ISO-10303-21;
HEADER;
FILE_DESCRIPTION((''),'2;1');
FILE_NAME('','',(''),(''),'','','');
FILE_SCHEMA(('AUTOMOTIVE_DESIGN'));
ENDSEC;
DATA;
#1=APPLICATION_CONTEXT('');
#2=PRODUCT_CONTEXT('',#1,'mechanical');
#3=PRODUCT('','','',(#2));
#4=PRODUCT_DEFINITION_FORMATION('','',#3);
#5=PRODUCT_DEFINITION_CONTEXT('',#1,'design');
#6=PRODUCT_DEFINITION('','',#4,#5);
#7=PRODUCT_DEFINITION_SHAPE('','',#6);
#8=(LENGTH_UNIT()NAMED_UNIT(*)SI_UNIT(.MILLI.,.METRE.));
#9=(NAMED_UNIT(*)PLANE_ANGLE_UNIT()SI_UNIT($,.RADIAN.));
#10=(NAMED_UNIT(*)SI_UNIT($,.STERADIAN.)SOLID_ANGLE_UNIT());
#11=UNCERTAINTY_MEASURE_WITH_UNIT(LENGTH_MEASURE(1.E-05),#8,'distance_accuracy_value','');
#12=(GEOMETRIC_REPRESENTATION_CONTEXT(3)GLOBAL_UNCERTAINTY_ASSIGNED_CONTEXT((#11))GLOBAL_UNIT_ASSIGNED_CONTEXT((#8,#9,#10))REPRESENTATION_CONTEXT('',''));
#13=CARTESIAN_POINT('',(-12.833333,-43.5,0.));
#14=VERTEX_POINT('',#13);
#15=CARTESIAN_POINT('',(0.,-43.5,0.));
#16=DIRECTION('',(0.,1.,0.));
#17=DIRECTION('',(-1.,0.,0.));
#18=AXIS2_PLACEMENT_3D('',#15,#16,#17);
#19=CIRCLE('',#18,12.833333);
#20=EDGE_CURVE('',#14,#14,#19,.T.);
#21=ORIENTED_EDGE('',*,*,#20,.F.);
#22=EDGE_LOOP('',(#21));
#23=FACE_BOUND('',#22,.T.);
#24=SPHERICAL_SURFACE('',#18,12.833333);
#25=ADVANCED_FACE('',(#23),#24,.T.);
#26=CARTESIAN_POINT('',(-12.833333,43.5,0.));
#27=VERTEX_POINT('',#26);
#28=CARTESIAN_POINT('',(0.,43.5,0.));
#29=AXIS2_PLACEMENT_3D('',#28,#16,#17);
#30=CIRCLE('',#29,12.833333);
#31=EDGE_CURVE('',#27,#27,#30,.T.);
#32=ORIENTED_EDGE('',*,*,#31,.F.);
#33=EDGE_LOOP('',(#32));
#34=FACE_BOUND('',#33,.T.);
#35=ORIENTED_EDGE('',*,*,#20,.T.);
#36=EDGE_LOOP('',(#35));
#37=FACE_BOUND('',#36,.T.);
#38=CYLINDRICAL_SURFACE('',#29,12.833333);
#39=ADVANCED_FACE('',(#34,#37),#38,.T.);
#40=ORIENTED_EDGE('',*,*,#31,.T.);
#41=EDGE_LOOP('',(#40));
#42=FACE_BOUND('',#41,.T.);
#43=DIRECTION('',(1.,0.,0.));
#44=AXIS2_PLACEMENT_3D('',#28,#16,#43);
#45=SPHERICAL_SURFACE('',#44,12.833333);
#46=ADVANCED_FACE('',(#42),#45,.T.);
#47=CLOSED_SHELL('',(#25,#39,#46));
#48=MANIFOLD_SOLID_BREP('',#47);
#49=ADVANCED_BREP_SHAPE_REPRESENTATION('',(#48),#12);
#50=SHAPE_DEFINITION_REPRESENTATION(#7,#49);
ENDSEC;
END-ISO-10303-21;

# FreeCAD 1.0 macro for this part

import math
import FreeCAD as App
import Part
import Sketcher

V = App.Vector
Q = App.Units.Quantity

doc = App.newDocument("Part")
body = doc.addObject("PartDesign::Body", "Body")

# Sketch on XY plane
sketch1 = body.newObject("Sketcher::SketchObject", "Sketch")
sketch1.AttachmentSupport = (doc.getObject("XY_Plane"), [""])
sketch1.MapMode = "FlatFace"
sketch1.addGeometry(Part.ArcOfCircle(Part.Circle(V(0, -43.5, 0), V(0, 0, 1), 12.833333), math.radians(-90), math.radians(0)), False)
sketch1.addGeometry(Part.LineSegment(V(12.833333, -43.5, 0), V(12.833333, 43.5, 0)), False)
sketch1.addGeometry(Part.ArcOfCircle(Part.Circle(V(0, 43.5, 0), V(0, 0, 1), 12.833333), math.radians(0), math.radians(90)), False)
sketch1.addGeometry(Part.LineSegment(V(0, 56.333333, 0), V(0, -56.333333, 0)), False)
sketch1.addConstraint(Sketcher.Constraint("Tangent", 0, 2, 1, 1))
sketch1.addConstraint(Sketcher.Constraint("Tangent", 1, 2, 2, 1))
sketch1.addConstraint(Sketcher.Constraint("Coincident", 2, 2, 3, 1))
sketch1.addConstraint(Sketcher.Constraint("Coincident", 3, 2, 0, 1))
sketch1.addConstraint(Sketcher.Constraint("Vertical", 1))
sketch1.addConstraint(Sketcher.Constraint("Vertical", 3))
sketch1.addConstraint(Sketcher.Constraint("Equal", 0, 2))
sketch1.addConstraint(Sketcher.Constraint("Symmetric", 0, 3, 2, 3, -1, 1))
sketch1.addConstraint(Sketcher.Constraint("PointOnObject", 2, 2, -2))
sketch1.addConstraint(Sketcher.Constraint("DistanceY", 1, 1, 1, 2, Q("87 mm")))
sketch1.addConstraint(Sketcher.Constraint("Radius", 0, Q("12.833333 mm")))
revolution = body.newObject("PartDesign::Revolution", "Revolution")
revolution.Profile = sketch1
revolution.ReferenceAxis = (sketch1, ["V_Axis"])
revolution.Angle = 360

doc.recompute()
